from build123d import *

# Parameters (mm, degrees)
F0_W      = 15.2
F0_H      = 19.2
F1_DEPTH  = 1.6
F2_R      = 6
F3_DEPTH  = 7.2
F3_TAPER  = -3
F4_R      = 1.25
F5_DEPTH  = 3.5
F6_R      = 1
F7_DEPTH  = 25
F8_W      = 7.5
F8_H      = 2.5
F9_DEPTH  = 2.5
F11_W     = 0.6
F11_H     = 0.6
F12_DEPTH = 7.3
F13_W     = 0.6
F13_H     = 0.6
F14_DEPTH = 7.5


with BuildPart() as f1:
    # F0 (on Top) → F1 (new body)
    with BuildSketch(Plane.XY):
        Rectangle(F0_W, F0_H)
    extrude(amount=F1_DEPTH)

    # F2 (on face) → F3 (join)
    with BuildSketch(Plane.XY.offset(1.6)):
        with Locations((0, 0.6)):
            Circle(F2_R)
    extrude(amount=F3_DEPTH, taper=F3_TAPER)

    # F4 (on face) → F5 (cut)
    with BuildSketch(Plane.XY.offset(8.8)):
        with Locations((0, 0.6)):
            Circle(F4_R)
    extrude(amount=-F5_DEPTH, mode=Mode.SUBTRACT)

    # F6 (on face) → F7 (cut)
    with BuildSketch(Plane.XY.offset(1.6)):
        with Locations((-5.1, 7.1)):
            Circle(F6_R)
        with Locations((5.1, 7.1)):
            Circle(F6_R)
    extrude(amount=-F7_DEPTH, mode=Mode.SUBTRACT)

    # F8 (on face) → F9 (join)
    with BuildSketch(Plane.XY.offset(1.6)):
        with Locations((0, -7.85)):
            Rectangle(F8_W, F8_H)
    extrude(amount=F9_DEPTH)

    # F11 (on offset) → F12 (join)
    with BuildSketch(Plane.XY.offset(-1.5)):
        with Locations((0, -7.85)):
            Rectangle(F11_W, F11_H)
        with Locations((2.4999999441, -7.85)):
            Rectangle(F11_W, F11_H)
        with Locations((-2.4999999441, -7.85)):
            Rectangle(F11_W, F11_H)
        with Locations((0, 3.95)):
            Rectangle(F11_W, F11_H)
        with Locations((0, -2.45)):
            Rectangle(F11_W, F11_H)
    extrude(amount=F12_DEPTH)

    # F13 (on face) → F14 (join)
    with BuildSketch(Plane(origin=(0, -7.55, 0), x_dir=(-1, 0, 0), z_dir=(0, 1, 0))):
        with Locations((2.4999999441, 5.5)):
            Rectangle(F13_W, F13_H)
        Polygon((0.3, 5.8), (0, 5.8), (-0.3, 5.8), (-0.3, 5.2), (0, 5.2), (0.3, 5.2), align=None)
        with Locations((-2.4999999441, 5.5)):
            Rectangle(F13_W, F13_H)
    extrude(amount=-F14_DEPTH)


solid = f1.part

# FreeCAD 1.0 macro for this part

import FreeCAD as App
import Part
import Sketcher

V = App.Vector

doc = App.newDocument("Part")
params = doc.addObject("Spreadsheet::Sheet", "Params")
for row, (alias, value) in enumerate([
    ("sketch1_width", "15.2 mm"),
    ("sketch1_height", "19.2 mm"),
    ("pad1_length", "1.6 mm"),
    ("sketch2_diameter", "12 mm"),
    ("pad2_length", "7.2 mm"),
    ("pad2_taper", "3 deg"),
    ("sketch3_diameter", "2.5 mm"),
    ("pocket1_length", "3.5 mm"),
    ("sketch4_diameter", "2 mm"),
    ("pocket2_length", "25 mm"),
    ("sketch5_width", "7.5 mm"),
    ("sketch5_height", "2.5 mm"),
    ("pad3_length", "2.5 mm"),
    ("sketch6_width", "0.6 mm"),
    ("pad4_length", "7.3 mm"),
    ("sketch7_width", "0.6 mm"),
    ("pad5_length", "7.5 mm"),
], start=1):
    params.set(f"A{row}", alias)
    params.set(f"B{row}", "=" + value)
    params.setAlias(f"B{row}", alias)

body = doc.addObject("PartDesign::Body", "Body")

# Sketch on XY plane
sketch1 = doc.addObject("Sketcher::SketchObject", "Sketch")
body.addObject(sketch1)
sketch1.AttachmentSupport = (doc.XY_Plane, [""])
sketch1.MapMode = "FlatFace"
sketch1.addGeometry([
    Part.LineSegment(V(-8, 10, 0), V(-8, -10, 0)),
    Part.LineSegment(V(-8, -10, 0), V(8, -10, 0)),
    Part.LineSegment(V(8, -10, 0), V(8, 10, 0)),
    Part.LineSegment(V(8, 10, 0), V(-8, 10, 0)),
], False)
sketch1.addConstraint([
    Sketcher.Constraint("Coincident", 0, 2, 1, 1),
    Sketcher.Constraint("Coincident", 1, 2, 2, 1),
    Sketcher.Constraint("Coincident", 2, 2, 3, 1),
    Sketcher.Constraint("Coincident", 3, 2, 0, 1),
    Sketcher.Constraint("Vertical", 0),
    Sketcher.Constraint("Horizontal", 1),
    Sketcher.Constraint("Vertical", 2),
    Sketcher.Constraint("Horizontal", 3),
    Sketcher.Constraint("Symmetric", 0, 2, 2, 2, -1, 1),
    Sketcher.Constraint("DistanceX", 1, 1, 1, 2, 15.2),
    Sketcher.Constraint("DistanceY", 0, 2, 0, 1, 19.2),
])
sketch1.setExpression("Constraints[9]", "Params.sketch1_width")
sketch1.setExpression("Constraints[10]", "Params.sketch1_height")
pad1 = doc.addObject("PartDesign::Pad", "Pad")
body.addObject(pad1)
pad1.Profile = sketch1
pad1.setExpression("Length", "Params.pad1_length")

# Sketch on XY plane
sketch2 = doc.addObject("Sketcher::SketchObject", "Sketch001")
body.addObject(sketch2)
sketch2.AttachmentSupport = (doc.XY_Plane, [""])
sketch2.MapMode = "FlatFace"
sketch2.AttachmentOffset = App.Placement(V(0, 0, 1.6), App.Rotation())
sketch2.addGeometry(Part.Circle(V(0, 1, 0), V(0, 0, 1), 6), False)
sketch2.addConstraint([
    Sketcher.Constraint("PointOnObject", 0, 3, -2),
    Sketcher.Constraint("Diameter", 0, 12.0),
    Sketcher.Constraint("DistanceY", -1, 1, 0, 3, 0.6),
])
sketch2.setExpression("Constraints[1]", "Params.sketch2_diameter")
pad2 = doc.addObject("PartDesign::Pad", "Pad001")
body.addObject(pad2)
pad2.Profile = sketch2
pad2.setExpression("Length", "Params.pad2_length")
pad2.setExpression("TaperAngle", "Params.pad2_taper")

# Sketch on XY plane
sketch3 = doc.addObject("Sketcher::SketchObject", "Sketch002")
body.addObject(sketch3)
sketch3.AttachmentSupport = (doc.XY_Plane, [""])
sketch3.MapMode = "FlatFace"
sketch3.AttachmentOffset = App.Placement(V(0, 0, 8.8), App.Rotation())
sketch3.addGeometry(Part.Circle(V(0, 0.6, 0), V(0, 0, 1), 1.2), False)
sketch3.addConstraint([
    Sketcher.Constraint("PointOnObject", 0, 3, -2),
    Sketcher.Constraint("Diameter", 0, 2.5),
    Sketcher.Constraint("DistanceY", -1, 1, 0, 3, 0.6),
])
sketch3.setExpression("Constraints[1]", "Params.sketch3_diameter")
pocket1 = doc.addObject("PartDesign::Pocket", "Pocket")
body.addObject(pocket1)
pocket1.Profile = sketch3
pocket1.setExpression("Length", "Params.pocket1_length")

# Sketch on XY plane
sketch4 = doc.addObject("Sketcher::SketchObject", "Sketch003")
body.addObject(sketch4)
sketch4.AttachmentSupport = (doc.XY_Plane, [""])
sketch4.MapMode = "FlatFace"
sketch4.AttachmentOffset = App.Placement(V(0, 0, 1.6), App.Rotation())
sketch4.addGeometry([
    Part.Circle(V(-5.1, 7.1, 0), V(0, 0, 1), 1),
    Part.Circle(V(5.1, 7.1, 0), V(0, 0, 1), 1),
], False)
sketch4.addConstraint([
    Sketcher.Constraint("Equal", 0, 1),
    Sketcher.Constraint("Symmetric", 0, 3, 1, 3, -2),
    Sketcher.Constraint("Diameter", 0, 2.0),
    Sketcher.Constraint("DistanceX", 0, 3, -1, 1, 5.1),
    Sketcher.Constraint("DistanceY", -1, 1, 0, 3, 7.1),
])
sketch4.setExpression("Constraints[2]", "Params.sketch4_diameter")
pocket2 = doc.addObject("PartDesign::Pocket", "Pocket001")
body.addObject(pocket2)
pocket2.Profile = sketch4
pocket2.setExpression("Length", "Params.pocket2_length")

# Sketch on XY plane
sketch5 = doc.addObject("Sketcher::SketchObject", "Sketch004")
body.addObject(sketch5)
sketch5.AttachmentSupport = (doc.XY_Plane, [""])
sketch5.MapMode = "FlatFace"
sketch5.AttachmentOffset = App.Placement(V(0, 0, 1.6), App.Rotation())
sketch5.addGeometry([
    Part.LineSegment(V(-3.8, -6.6, 0), V(-3.8, -9.1, 0)),
    Part.LineSegment(V(-3.8, -9.1, 0), V(3.8, -9.1, 0)),
    Part.LineSegment(V(3.8, -9.1, 0), V(3.8, -6.6, 0)),
    Part.LineSegment(V(3.8, -6.6, 0), V(-3.8, -6.6, 0)),
], False)
sketch5.addConstraint([
    Sketcher.Constraint("Coincident", 0, 2, 1, 1),
    Sketcher.Constraint("Coincident", 1, 2, 2, 1),
    Sketcher.Constraint("Coincident", 2, 2, 3, 1),
    Sketcher.Constraint("Coincident", 3, 2, 0, 1),
    Sketcher.Constraint("Vertical", 0),
    Sketcher.Constraint("Horizontal", 1),
    Sketcher.Constraint("Vertical", 2),
    Sketcher.Constraint("Horizontal", 3),
    Sketcher.Constraint("DistanceX", 1, 1, 1, 2, 7.5),
    Sketcher.Constraint("DistanceY", 0, 2, 0, 1, 2.5),
    Sketcher.Constraint("DistanceY", 0, 2, -1, 1, 9.1),
    Sketcher.Constraint("DistanceX", 0, 2, -1, 1, 3.75),
])
sketch5.setExpression("Constraints[8]", "Params.sketch5_width")
sketch5.setExpression("Constraints[9]", "Params.sketch5_height")
pad3 = doc.addObject("PartDesign::Pad", "Pad002")
body.addObject(pad3)
pad3.Profile = sketch5
pad3.setExpression("Length", "Params.pad3_length")

# Sketch on XY plane
sketch6 = doc.addObject("Sketcher::SketchObject", "Sketch005")
body.addObject(sketch6)
sketch6.AttachmentSupport = (doc.XY_Plane, [""])
sketch6.MapMode = "FlatFace"
sketch6.AttachmentOffset = App.Placement(V(0, 0, -1.5), App.Rotation())
sketch6.addGeometry([
    Part.LineSegment(V(-0.3, -7.5, 0), V(-0.3, -8.2, 0)),  # 0
    Part.LineSegment(V(-0.3, -8.2, 0), V(0.3, -8.2, 0)),  # 1
    Part.LineSegment(V(0.3, -8.2, 0), V(0.3, -7.5, 0)),  # 2
    Part.LineSegment(V(0.3, -7.5, 0), V(-0.3, -7.5, 0)),  # 3
    Part.LineSegment(V(2.2, -7.5, 0), V(2.2, -8.2, 0)),  # 4
    Part.LineSegment(V(2.2, -8.2, 0), V(2.8, -8.2, 0)),  # 5
    Part.LineSegment(V(2.8, -8.2, 0), V(2.8, -7.5, 0)),  # 6
    Part.LineSegment(V(2.8, -7.5, 0), V(2.2, -7.5, 0)),  # 7
    Part.LineSegment(V(-2.8, -7.5, 0), V(-2.8, -8.2, 0)),  # 8
    Part.LineSegment(V(-2.8, -8.2, 0), V(-2.2, -8.2, 0)),  # 9
    Part.LineSegment(V(-2.2, -8.2, 0), V(-2.2, -7.5, 0)),  # 10
    Part.LineSegment(V(-2.2, -7.5, 0), V(-2.8, -7.5, 0)),  # 11
    Part.LineSegment(V(-0.3, 4.2, 0), V(-0.3, 3.6, 0)),  # 12
    Part.LineSegment(V(-0.3, 3.6, 0), V(0.3, 3.6, 0)),  # 13
    Part.LineSegment(V(0.3, 3.6, 0), V(0.3, 4.2, 0)),  # 14
    Part.LineSegment(V(0.3, 4.2, 0), V(-0.3, 4.2, 0)),  # 15
    Part.LineSegment(V(-0.3, -2.1, 0), V(-0.3, -2.8, 0)),  # 16
    Part.LineSegment(V(-0.3, -2.8, 0), V(0.3, -2.8, 0)),  # 17
    Part.LineSegment(V(0.3, -2.8, 0), V(0.3, -2.1, 0)),  # 18
    Part.LineSegment(V(0.3, -2.1, 0), V(-0.3, -2.1, 0)),  # 19
], False)
sketch6.addConstraint([
    Sketcher.Constraint("Coincident", 0, 2, 1, 1),
    Sketcher.Constraint("Coincident", 1, 2, 2, 1),
    Sketcher.Constraint("Coincident", 2, 2, 3, 1),
    Sketcher.Constraint("Coincident", 3, 2, 0, 1),
    Sketcher.Constraint("Coincident", 4, 2, 5, 1),
    Sketcher.Constraint("Coincident", 5, 2, 6, 1),
    Sketcher.Constraint("Coincident", 6, 2, 7, 1),
    Sketcher.Constraint("Coincident", 7, 2, 4, 1),
    Sketcher.Constraint("Coincident", 8, 2, 9, 1),
    Sketcher.Constraint("Coincident", 9, 2, 10, 1),
    Sketcher.Constraint("Coincident", 10, 2, 11, 1),
    Sketcher.Constraint("Coincident", 11, 2, 8, 1),
    Sketcher.Constraint("Coincident", 12, 2, 13, 1),
    Sketcher.Constraint("Coincident", 13, 2, 14, 1),
    Sketcher.Constraint("Coincident", 14, 2, 15, 1),
    Sketcher.Constraint("Coincident", 15, 2, 12, 1),
    Sketcher.Constraint("Coincident", 16, 2, 17, 1),
    Sketcher.Constraint("Coincident", 17, 2, 18, 1),
    Sketcher.Constraint("Coincident", 18, 2, 19, 1),
    Sketcher.Constraint("Coincident", 19, 2, 16, 1),
    Sketcher.Constraint("Vertical", 0),
    Sketcher.Constraint("Horizontal", 1),
    Sketcher.Constraint("Vertical", 2),
    Sketcher.Constraint("Horizontal", 3),
    Sketcher.Constraint("Vertical", 4),
    Sketcher.Constraint("Horizontal", 5),
    Sketcher.Constraint("Vertical", 6),
    Sketcher.Constraint("Horizontal", 7),
    Sketcher.Constraint("Vertical", 8),
    Sketcher.Constraint("Horizontal", 9),
    Sketcher.Constraint("Vertical", 10),
    Sketcher.Constraint("Horizontal", 11),
    Sketcher.Constraint("Vertical", 12),
    Sketcher.Constraint("Horizontal", 13),
    Sketcher.Constraint("Vertical", 14),
    Sketcher.Constraint("Horizontal", 15),
    Sketcher.Constraint("Vertical", 16),
    Sketcher.Constraint("Horizontal", 17),
    Sketcher.Constraint("Vertical", 18),
    Sketcher.Constraint("Horizontal", 19),
    Sketcher.Constraint("Symmetric", 5, 2, 8, 2, -2),
    Sketcher.Constraint("Symmetric", 7, 2, 10, 2, -2),
    Sketcher.Constraint("Horizontal", 1, 2, 4, 2),
    Sketcher.Constraint("Horizontal", 3, 2, 6, 2),
    Sketcher.Constraint("Vertical", 3, 2, 12, 2),
    Sketcher.Constraint("Vertical", 2, 2, 13, 2),
    Sketcher.Constraint("Vertical", 15, 2, 16, 2),
    Sketcher.Constraint("Vertical", 14, 2, 17, 2),
    Sketcher.Constraint("Equal", 3, 5),
    Sketcher.Constraint("Equal", 19, 0),
    Sketcher.Constraint("Equal", 10, 12),
    Sketcher.Constraint("Equal", 14, 16),
    Sketcher.Constraint("DistanceX", 1, 1, 1, 2, 0.6),
    Sketcher.Constraint("DistanceX", 8, 2, 4, 2, 5.0),
    Sketcher.Constraint("DistanceX", 0, 2, -1, 1, 0.3),
    Sketcher.Constraint("DistanceY", 3, 2, 12, 2, 11.2),
    Sketcher.Constraint("DistanceY", 3, 2, 16, 2, 4.8),
    Sketcher.Constraint("DistanceY", 0, 2, -1, 1, 8.15),
])
sketch6.setExpression("Constraints[52]", "Params.sketch6_width")
pad4 = doc.addObject("PartDesign::Pad", "Pad003")
body.addObject(pad4)
pad4.Profile = sketch6
pad4.setExpression("Length", "Params.pad4_length")

# Sketch on XZ plane
sketch7 = doc.addObject("Sketcher::SketchObject", "Sketch006")
body.addObject(sketch7)
sketch7.AttachmentSupport = (doc.XZ_Plane, [""])
sketch7.MapMode = "FlatFace"
sketch7.AttachmentOffset = App.Placement(V(0, 0, 7.55), App.Rotation())
sketch7.addGeometry([
    Part.LineSegment(V(-2.2, 5.8, 0), V(-2.2, 5.2, 0)),  # 0
    Part.LineSegment(V(-2.2, 5.2, 0), V(-2.8, 5.2, 0)),  # 1
    Part.LineSegment(V(-2.8, 5.2, 0), V(-2.8, 5.8, 0)),  # 2
    Part.LineSegment(V(-2.8, 5.8, 0), V(-2.2, 5.8, 0)),  # 3
    Part.LineSegment(V(-0.3, 5.8, 0), V(0.3, 5.8, 0)),  # 4
    Part.LineSegment(V(0.3, 5.8, 0), V(0.3, 5.2, 0)),  # 5
    Part.LineSegment(V(0.3, 5.2, 0), V(-0.3, 5.2, 0)),  # 6
    Part.LineSegment(V(-0.3, 5.2, 0), V(-0.3, 5.8, 0)),  # 7
    Part.LineSegment(V(2.8, 5.8, 0), V(2.8, 5.2, 0)),  # 8
    Part.LineSegment(V(2.8, 5.2, 0), V(2.2, 5.2, 0)),  # 9
    Part.LineSegment(V(2.2, 5.2, 0), V(2.2, 5.8, 0)),  # 10
    Part.LineSegment(V(2.2, 5.8, 0), V(2.8, 5.8, 0)),  # 11
], False)
sketch7.addConstraint([
    Sketcher.Constraint("Coincident", 0, 2, 1, 1),
    Sketcher.Constraint("Coincident", 1, 2, 2, 1),
    Sketcher.Constraint("Coincident", 2, 2, 3, 1),
    Sketcher.Constraint("Coincident", 3, 2, 0, 1),
    Sketcher.Constraint("Coincident", 4, 2, 5, 1),
    Sketcher.Constraint("Coincident", 5, 2, 6, 1),
    Sketcher.Constraint("Coincident", 6, 2, 7, 1),
    Sketcher.Constraint("Coincident", 7, 2, 4, 1),
    Sketcher.Constraint("Coincident", 8, 2, 9, 1),
    Sketcher.Constraint("Coincident", 9, 2, 10, 1),
    Sketcher.Constraint("Coincident", 10, 2, 11, 1),
    Sketcher.Constraint("Coincident", 11, 2, 8, 1),
    Sketcher.Constraint("Vertical", 0),
    Sketcher.Constraint("Horizontal", 1),
    Sketcher.Constraint("Vertical", 2),
    Sketcher.Constraint("Horizontal", 3),
    Sketcher.Constraint("Horizontal", 4),
    Sketcher.Constraint("Vertical", 5),
    Sketcher.Constraint("Horizontal", 6),
    Sketcher.Constraint("Vertical", 7),
    Sketcher.Constraint("Vertical", 8),
    Sketcher.Constraint("Horizontal", 9),
    Sketcher.Constraint("Vertical", 10),
    Sketcher.Constraint("Horizontal", 11),
    Sketcher.Constraint("Symmetric", 1, 2, 8, 2, -2),
    Sketcher.Constraint("Symmetric", 3, 2, 10, 2, -2),
    Sketcher.Constraint("Horizontal", 3, 2, 4, 2),
    Sketcher.Constraint("Horizontal", 1, 2, 5, 2),
    Sketcher.Constraint("Equal", 3, 4),
    Sketcher.Constraint("Equal", 11, 0),
    Sketcher.Constraint("DistanceX", 1, 2, 1, 1, 0.6),
    Sketcher.Constraint("DistanceX", 0, 2, 8, 2, 5.0),
    Sketcher.Constraint("DistanceY", -1, 1, 0, 2, 5.2),
    Sketcher.Constraint("DistanceX", -1, 1, 4, 2, 0.3),
])
sketch7.setExpression("Constraints[30]", "Params.sketch7_width")
pad5 = doc.addObject("PartDesign::Pad", "Pad004")
body.addObject(pad5)
pad5.Profile = sketch7
pad5.setExpression("Length", "Params.pad5_length")

doc.recompute()
